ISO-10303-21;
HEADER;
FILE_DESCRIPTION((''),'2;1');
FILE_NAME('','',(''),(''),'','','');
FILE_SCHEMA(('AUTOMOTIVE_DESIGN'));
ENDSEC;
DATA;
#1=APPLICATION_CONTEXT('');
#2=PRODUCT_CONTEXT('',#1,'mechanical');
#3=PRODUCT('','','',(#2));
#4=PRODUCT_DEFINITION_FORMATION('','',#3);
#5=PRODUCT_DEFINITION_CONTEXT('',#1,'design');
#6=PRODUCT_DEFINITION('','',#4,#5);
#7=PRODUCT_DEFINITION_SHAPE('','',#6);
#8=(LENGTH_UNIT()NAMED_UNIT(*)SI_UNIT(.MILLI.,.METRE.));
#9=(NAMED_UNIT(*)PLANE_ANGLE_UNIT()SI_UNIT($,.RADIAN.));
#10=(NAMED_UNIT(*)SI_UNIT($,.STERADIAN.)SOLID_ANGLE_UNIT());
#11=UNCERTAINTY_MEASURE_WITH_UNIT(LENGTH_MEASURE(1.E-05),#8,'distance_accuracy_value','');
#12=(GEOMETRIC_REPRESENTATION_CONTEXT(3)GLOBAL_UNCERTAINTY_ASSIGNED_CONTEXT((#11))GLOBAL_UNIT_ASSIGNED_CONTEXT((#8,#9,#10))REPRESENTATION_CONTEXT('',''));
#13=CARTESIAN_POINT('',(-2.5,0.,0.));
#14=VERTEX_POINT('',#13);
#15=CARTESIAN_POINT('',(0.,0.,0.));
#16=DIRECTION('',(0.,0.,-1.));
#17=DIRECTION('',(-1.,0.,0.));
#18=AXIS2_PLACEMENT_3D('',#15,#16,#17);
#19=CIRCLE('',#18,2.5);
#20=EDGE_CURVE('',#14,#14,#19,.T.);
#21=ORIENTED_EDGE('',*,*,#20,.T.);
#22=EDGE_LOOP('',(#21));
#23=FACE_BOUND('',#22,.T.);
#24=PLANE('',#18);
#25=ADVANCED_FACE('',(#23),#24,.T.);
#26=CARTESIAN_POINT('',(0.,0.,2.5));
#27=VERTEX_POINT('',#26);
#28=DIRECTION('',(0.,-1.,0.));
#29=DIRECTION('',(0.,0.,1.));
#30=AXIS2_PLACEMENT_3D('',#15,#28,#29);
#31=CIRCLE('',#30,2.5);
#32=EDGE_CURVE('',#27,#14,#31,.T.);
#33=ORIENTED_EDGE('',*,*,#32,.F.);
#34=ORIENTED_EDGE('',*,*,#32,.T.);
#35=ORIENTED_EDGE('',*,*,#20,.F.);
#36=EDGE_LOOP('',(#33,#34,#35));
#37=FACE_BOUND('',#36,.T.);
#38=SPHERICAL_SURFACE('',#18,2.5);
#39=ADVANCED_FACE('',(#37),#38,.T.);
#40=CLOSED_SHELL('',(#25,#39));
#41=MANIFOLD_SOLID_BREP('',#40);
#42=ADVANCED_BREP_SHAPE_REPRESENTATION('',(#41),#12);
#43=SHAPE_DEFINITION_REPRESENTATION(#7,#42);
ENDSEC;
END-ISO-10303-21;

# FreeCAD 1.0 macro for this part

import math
import FreeCAD as App
import Part
import Sketcher
from FreeCAD import Vector
Q = App.Units.Quantity

doc = App.newDocument("Part")
body = doc.addObject("PartDesign::Body", "Body")

# Sketch on XZ plane
sketch1 = body.newObject("Sketcher::SketchObject", "Sketch")
sketch1.AttachmentSupport = (doc.getObject("XZ_Plane"), [""])
sketch1.MapMode = "FlatFace"
sketch1.addGeometry(Part.LineSegment(Vector(0, 0, 0), Vector(-2.5, 0, 0)), False)
sketch1.addGeometry(Part.ArcOfCircle(Part.Circle(Vector(0, 0, 0), Vector(0, 0, 1), 2.5), math.radians(90), math.radians(180)), False)
sketch1.addGeometry(Part.LineSegment(Vector(0, 2.5, 0), Vector(0, 0, 0)), False)
sketch1.addConstraint(Sketcher.Constraint("Coincident", 0, 2, 1, 2))
sketch1.addConstraint(Sketcher.Constraint("Coincident", 1, 1, 2, 1))
sketch1.addConstraint(Sketcher.Constraint("Coincident", 2, 2, 0, 1))
sketch1.addConstraint(Sketcher.Constraint("Horizontal", 0))
sketch1.addConstraint(Sketcher.Constraint("Vertical", 2))
sketch1.addConstraint(Sketcher.Constraint("Coincident", 1, 3, -1, 1))
sketch1.addConstraint(Sketcher.Constraint("Coincident", 2, 2, -1, 1))
sketch1.addConstraint(Sketcher.Constraint("Radius", 1, Q("2.5 mm")))
revolution = body.newObject("PartDesign::Revolution", "Revolution")
revolution.Profile = sketch1
revolution.ReferenceAxis = (sketch1, ["V_Axis"])
revolution.Angle = 360

doc.recompute()
